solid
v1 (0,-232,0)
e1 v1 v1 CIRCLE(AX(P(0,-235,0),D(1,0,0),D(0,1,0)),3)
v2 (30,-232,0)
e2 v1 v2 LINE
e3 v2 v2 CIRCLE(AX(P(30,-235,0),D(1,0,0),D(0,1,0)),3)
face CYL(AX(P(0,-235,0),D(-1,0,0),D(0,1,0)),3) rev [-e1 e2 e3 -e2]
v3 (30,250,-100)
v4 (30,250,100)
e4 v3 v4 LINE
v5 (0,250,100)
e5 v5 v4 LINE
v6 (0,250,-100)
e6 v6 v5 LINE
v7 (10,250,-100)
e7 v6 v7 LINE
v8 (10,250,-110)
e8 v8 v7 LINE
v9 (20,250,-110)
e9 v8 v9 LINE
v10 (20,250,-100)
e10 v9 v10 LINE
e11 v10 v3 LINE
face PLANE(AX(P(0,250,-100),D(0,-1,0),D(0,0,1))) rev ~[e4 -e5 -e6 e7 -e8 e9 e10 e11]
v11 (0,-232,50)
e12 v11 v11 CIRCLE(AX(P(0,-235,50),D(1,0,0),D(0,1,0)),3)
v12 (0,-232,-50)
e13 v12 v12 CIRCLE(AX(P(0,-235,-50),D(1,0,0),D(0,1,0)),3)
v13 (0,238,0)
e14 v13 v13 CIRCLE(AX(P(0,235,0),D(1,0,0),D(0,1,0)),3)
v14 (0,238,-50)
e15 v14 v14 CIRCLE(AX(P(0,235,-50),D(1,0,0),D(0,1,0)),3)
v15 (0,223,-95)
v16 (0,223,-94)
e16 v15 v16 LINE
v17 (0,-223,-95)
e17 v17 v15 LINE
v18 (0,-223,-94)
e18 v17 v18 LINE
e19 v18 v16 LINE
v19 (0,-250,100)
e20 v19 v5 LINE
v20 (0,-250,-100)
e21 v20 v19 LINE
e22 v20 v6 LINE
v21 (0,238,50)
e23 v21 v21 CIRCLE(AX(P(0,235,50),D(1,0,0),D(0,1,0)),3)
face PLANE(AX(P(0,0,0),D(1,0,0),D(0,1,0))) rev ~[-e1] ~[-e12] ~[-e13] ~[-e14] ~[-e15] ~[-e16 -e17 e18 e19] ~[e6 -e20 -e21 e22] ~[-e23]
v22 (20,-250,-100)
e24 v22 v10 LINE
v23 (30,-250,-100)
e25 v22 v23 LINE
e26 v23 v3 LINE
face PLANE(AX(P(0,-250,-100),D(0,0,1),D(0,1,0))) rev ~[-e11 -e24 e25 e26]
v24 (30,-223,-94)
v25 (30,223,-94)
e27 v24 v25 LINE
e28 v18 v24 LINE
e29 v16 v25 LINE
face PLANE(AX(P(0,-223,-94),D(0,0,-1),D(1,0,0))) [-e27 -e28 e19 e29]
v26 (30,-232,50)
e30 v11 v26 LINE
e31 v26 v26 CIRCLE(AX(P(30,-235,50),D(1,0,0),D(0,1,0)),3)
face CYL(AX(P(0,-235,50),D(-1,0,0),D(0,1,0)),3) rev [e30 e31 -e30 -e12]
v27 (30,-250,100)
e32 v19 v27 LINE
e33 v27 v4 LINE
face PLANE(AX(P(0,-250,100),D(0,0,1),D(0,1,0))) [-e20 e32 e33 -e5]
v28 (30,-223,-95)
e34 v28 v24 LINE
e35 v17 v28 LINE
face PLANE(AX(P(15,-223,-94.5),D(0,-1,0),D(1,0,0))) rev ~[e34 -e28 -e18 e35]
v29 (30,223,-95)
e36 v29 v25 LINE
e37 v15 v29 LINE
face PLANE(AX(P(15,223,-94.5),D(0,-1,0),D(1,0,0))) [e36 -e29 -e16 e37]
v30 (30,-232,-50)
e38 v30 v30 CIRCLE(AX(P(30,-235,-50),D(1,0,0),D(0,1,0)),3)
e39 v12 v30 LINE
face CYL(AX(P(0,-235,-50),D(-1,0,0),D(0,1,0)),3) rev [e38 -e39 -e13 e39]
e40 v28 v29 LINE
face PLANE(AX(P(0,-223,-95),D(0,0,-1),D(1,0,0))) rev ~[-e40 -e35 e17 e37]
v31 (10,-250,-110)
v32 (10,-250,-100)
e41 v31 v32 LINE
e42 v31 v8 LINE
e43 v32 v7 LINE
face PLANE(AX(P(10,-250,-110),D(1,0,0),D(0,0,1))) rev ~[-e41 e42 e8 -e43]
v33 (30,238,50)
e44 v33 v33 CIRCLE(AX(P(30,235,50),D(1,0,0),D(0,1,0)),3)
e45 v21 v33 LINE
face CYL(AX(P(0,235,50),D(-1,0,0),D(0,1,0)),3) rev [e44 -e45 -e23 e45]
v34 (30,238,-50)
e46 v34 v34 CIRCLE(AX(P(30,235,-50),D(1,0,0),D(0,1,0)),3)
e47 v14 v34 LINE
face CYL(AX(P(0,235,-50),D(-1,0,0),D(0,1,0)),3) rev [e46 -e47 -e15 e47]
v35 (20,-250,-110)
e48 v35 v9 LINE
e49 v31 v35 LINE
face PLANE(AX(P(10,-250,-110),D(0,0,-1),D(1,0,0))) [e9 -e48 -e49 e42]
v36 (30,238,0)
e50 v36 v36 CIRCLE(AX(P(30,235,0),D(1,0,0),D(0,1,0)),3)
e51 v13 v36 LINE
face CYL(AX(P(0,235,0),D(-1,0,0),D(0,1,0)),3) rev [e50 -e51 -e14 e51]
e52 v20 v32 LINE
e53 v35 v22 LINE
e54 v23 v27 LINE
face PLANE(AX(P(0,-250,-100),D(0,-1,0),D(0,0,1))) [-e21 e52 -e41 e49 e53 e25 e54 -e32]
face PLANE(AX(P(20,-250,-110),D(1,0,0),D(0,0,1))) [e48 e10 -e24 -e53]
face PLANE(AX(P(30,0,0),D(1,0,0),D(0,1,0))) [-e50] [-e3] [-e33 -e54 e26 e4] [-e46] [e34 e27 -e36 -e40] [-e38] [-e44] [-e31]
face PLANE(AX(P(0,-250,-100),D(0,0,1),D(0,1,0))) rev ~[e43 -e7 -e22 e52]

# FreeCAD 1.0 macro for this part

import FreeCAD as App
import Part
import Sketcher

V = App.Vector
Q = App.Units.Quantity


def add_polygon(sketch, points):
    """Adds a closed chain of lines whose ends are joined by coincident constraints."""
    first, n = sketch.GeometryCount, len(points)
    for a, b in zip(points, points[1:] + points[:1]):
        sketch.addGeometry(Part.LineSegment(App.Vector(*a, 0), App.Vector(*b, 0)), False)
    for i in range(n):
        sketch.addConstraint(Sketcher.Constraint("Coincident", first + i, 2, first + (i + 1) % n, 1))

doc = App.newDocument("Part")
params = doc.addObject("Spreadsheet::Sheet", "Params")
for row, (alias, value) in enumerate([
    ("sketch1_diameter", "6 mm"),
    ("sketch1_width", "500 mm"),
    ("sketch1_height", "200 mm"),
    ("pad1_length", "30 mm"),
    ("sketch2_width", "10 mm"),
    ("pad2_length", "500 mm"),
    ("sketch3_width", "30 mm"),
    ("sketch3_height", "1 mm"),
    ("pocket1_length", "446 mm"),
], start=1):
    params.set(f"A{row}", alias)
    params.set(f"B{row}", "=" + value)
    params.setAlias(f"B{row}", alias)

body = doc.addObject("PartDesign::Body", "Body")

sketch1 = doc.addObject("Sketcher::SketchObject", "Sketch")
body.addObject(sketch1)
sketch1.AttachmentSupport = (doc.YZ_Plane, [""])
sketch1.MapMode = "FlatFace"
add_polygon(sketch1, [(-250, 100), (-250, -100), (250, -100), (250, 100)])
sketch1.addGeometry(Part.Circle(V(-235, -50, 0), V(0, 0, 1), 3), False)
sketch1.addGeometry(Part.Circle(V(235, -50, 0), V(0, 0, 1), 3), False)
sketch1.addGeometry(Part.Circle(V(-235, 0, 0), V(0, 0, 1), 3), False)
sketch1.addGeometry(Part.Circle(V(-235, 50, 0), V(0, 0, 1), 3), False)
sketch1.addGeometry(Part.Circle(V(235, 0, 0), V(0, 0, 1), 3), False)
sketch1.addGeometry(Part.Circle(V(235, 50, 0), V(0, 0, 1), 3), False)
sketch1.addConstraint([
    Sketcher.Constraint("Vertical", 0),
    Sketcher.Constraint("Horizontal", 1),
    Sketcher.Constraint("Vertical", 2),
    Sketcher.Constraint("Horizontal", 3),
    Sketcher.Constraint("Equal", 4, 5),
    Sketcher.Constraint("Equal", 5, 6),
    Sketcher.Constraint("Equal", 6, 7),
    Sketcher.Constraint("Equal", 7, 8),
    Sketcher.Constraint("Equal", 8, 9),
    Sketcher.Constraint("Symmetric", 5, 3, 7, 3, -1, 1),
    Sketcher.Constraint("Symmetric", 6, 3, 8, 3, -1, 1),
    Sketcher.Constraint("Symmetric", 4, 3, 9, 3, -1, 1),
    Sketcher.Constraint("Symmetric", 0, 2, 2, 2, -1, 1),
    Sketcher.Constraint("Symmetric", 4, 3, 5, 3, -2),
    Sketcher.Constraint("PointOnObject", 6, 3, -1),
    Sketcher.Constraint("Vertical", 4, 3, 6, 3),
    Sketcher.Constraint("Diameter", 4, Q("6 mm")),
    Sketcher.Constraint("DistanceX", 1, 1, 1, 2, Q("500 mm")),
    Sketcher.Constraint("DistanceY", 0, 2, 0, 1, Q("200 mm")),
    Sketcher.Constraint("DistanceX", 4, 3, -1, 1, Q("235 mm")),
    Sketcher.Constraint("DistanceY", 4, 3, -1, 1, Q("50 mm")),
])
sketch1.setExpression("Constraints[20]", "Params.sketch1_diameter")
sketch1.setExpression("Constraints[21]", "Params.sketch1_width")
sketch1.setExpression("Constraints[22]", "Params.sketch1_height")
pad1 = doc.addObject("PartDesign::Pad", "Pad")
body.addObject(pad1)
pad1.Profile = sketch1
pad1.setExpression("Length", "Params.pad1_length")

sketch2 = doc.addObject("Sketcher::SketchObject", "Sketch001")
body.addObject(sketch2)
sketch2.AttachmentSupport = (doc.XZ_Plane, [""])
sketch2.MapMode = "FlatFace"
sketch2.AttachmentOffset = App.Placement(V(0, 0, 250), App.Rotation())
add_polygon(sketch2, [(10, -100), (10, -110), (20, -110), (20, -100)])
sketch2.addConstraint([
    Sketcher.Constraint("Vertical", 0),
    Sketcher.Constraint("Horizontal", 1),
    Sketcher.Constraint("Vertical", 2),
    Sketcher.Constraint("Horizontal", 3),
    Sketcher.Constraint("Equal", 3, 0),
    Sketcher.Constraint("DistanceX", 1, 1, 1, 2, Q("10 mm")),
    Sketcher.Constraint("DistanceX", -1, 1, 0, 2, Q("10 mm")),
    Sketcher.Constraint("DistanceY", 0, 2, -1, 1, Q("110 mm")),
])
sketch2.setExpression("Constraints[9]", "Params.sketch2_width")
pad2 = doc.addObject("PartDesign::Pad", "Pad001")
body.addObject(pad2)
pad2.Profile = sketch2
pad2.setExpression("Length", "Params.pad2_length")
pad2.Reversed = True

sketch3 = doc.addObject("Sketcher::SketchObject", "Sketch002")
body.addObject(sketch3)
sketch3.AttachmentSupport = (doc.XZ_Plane, [""])
sketch3.MapMode = "FlatFace"
sketch3.AttachmentOffset = App.Placement(V(0, 0, 223), App.Rotation())
add_polygon(sketch3, [(0, -94), (0, -95), (30, -95), (30, -94)])
sketch3.addConstraint([
    Sketcher.Constraint("Vertical", 0),
    Sketcher.Constraint("Horizontal", 1),
    Sketcher.Constraint("Vertical", 2),
    Sketcher.Constraint("Horizontal", 3),
    Sketcher.Constraint("PointOnObject", 0, 2, -2),
    Sketcher.Constraint("DistanceX", 1, 1, 1, 2, Q("30 mm")),
    Sketcher.Constraint("DistanceY", 0, 2, 0, 1, Q("1 mm")),
    Sketcher.Constraint("DistanceY", 0, 2, -1, 1, Q("95 mm")),
])
sketch3.setExpression("Constraints[9]", "Params.sketch3_width")
sketch3.setExpression("Constraints[10]", "Params.sketch3_height")
pocket1 = doc.addObject("PartDesign::Pocket", "Pocket")
body.addObject(pocket1)
pocket1.Profile = sketch3
pocket1.setExpression("Length", "Params.pocket1_length")

doc.recompute()
